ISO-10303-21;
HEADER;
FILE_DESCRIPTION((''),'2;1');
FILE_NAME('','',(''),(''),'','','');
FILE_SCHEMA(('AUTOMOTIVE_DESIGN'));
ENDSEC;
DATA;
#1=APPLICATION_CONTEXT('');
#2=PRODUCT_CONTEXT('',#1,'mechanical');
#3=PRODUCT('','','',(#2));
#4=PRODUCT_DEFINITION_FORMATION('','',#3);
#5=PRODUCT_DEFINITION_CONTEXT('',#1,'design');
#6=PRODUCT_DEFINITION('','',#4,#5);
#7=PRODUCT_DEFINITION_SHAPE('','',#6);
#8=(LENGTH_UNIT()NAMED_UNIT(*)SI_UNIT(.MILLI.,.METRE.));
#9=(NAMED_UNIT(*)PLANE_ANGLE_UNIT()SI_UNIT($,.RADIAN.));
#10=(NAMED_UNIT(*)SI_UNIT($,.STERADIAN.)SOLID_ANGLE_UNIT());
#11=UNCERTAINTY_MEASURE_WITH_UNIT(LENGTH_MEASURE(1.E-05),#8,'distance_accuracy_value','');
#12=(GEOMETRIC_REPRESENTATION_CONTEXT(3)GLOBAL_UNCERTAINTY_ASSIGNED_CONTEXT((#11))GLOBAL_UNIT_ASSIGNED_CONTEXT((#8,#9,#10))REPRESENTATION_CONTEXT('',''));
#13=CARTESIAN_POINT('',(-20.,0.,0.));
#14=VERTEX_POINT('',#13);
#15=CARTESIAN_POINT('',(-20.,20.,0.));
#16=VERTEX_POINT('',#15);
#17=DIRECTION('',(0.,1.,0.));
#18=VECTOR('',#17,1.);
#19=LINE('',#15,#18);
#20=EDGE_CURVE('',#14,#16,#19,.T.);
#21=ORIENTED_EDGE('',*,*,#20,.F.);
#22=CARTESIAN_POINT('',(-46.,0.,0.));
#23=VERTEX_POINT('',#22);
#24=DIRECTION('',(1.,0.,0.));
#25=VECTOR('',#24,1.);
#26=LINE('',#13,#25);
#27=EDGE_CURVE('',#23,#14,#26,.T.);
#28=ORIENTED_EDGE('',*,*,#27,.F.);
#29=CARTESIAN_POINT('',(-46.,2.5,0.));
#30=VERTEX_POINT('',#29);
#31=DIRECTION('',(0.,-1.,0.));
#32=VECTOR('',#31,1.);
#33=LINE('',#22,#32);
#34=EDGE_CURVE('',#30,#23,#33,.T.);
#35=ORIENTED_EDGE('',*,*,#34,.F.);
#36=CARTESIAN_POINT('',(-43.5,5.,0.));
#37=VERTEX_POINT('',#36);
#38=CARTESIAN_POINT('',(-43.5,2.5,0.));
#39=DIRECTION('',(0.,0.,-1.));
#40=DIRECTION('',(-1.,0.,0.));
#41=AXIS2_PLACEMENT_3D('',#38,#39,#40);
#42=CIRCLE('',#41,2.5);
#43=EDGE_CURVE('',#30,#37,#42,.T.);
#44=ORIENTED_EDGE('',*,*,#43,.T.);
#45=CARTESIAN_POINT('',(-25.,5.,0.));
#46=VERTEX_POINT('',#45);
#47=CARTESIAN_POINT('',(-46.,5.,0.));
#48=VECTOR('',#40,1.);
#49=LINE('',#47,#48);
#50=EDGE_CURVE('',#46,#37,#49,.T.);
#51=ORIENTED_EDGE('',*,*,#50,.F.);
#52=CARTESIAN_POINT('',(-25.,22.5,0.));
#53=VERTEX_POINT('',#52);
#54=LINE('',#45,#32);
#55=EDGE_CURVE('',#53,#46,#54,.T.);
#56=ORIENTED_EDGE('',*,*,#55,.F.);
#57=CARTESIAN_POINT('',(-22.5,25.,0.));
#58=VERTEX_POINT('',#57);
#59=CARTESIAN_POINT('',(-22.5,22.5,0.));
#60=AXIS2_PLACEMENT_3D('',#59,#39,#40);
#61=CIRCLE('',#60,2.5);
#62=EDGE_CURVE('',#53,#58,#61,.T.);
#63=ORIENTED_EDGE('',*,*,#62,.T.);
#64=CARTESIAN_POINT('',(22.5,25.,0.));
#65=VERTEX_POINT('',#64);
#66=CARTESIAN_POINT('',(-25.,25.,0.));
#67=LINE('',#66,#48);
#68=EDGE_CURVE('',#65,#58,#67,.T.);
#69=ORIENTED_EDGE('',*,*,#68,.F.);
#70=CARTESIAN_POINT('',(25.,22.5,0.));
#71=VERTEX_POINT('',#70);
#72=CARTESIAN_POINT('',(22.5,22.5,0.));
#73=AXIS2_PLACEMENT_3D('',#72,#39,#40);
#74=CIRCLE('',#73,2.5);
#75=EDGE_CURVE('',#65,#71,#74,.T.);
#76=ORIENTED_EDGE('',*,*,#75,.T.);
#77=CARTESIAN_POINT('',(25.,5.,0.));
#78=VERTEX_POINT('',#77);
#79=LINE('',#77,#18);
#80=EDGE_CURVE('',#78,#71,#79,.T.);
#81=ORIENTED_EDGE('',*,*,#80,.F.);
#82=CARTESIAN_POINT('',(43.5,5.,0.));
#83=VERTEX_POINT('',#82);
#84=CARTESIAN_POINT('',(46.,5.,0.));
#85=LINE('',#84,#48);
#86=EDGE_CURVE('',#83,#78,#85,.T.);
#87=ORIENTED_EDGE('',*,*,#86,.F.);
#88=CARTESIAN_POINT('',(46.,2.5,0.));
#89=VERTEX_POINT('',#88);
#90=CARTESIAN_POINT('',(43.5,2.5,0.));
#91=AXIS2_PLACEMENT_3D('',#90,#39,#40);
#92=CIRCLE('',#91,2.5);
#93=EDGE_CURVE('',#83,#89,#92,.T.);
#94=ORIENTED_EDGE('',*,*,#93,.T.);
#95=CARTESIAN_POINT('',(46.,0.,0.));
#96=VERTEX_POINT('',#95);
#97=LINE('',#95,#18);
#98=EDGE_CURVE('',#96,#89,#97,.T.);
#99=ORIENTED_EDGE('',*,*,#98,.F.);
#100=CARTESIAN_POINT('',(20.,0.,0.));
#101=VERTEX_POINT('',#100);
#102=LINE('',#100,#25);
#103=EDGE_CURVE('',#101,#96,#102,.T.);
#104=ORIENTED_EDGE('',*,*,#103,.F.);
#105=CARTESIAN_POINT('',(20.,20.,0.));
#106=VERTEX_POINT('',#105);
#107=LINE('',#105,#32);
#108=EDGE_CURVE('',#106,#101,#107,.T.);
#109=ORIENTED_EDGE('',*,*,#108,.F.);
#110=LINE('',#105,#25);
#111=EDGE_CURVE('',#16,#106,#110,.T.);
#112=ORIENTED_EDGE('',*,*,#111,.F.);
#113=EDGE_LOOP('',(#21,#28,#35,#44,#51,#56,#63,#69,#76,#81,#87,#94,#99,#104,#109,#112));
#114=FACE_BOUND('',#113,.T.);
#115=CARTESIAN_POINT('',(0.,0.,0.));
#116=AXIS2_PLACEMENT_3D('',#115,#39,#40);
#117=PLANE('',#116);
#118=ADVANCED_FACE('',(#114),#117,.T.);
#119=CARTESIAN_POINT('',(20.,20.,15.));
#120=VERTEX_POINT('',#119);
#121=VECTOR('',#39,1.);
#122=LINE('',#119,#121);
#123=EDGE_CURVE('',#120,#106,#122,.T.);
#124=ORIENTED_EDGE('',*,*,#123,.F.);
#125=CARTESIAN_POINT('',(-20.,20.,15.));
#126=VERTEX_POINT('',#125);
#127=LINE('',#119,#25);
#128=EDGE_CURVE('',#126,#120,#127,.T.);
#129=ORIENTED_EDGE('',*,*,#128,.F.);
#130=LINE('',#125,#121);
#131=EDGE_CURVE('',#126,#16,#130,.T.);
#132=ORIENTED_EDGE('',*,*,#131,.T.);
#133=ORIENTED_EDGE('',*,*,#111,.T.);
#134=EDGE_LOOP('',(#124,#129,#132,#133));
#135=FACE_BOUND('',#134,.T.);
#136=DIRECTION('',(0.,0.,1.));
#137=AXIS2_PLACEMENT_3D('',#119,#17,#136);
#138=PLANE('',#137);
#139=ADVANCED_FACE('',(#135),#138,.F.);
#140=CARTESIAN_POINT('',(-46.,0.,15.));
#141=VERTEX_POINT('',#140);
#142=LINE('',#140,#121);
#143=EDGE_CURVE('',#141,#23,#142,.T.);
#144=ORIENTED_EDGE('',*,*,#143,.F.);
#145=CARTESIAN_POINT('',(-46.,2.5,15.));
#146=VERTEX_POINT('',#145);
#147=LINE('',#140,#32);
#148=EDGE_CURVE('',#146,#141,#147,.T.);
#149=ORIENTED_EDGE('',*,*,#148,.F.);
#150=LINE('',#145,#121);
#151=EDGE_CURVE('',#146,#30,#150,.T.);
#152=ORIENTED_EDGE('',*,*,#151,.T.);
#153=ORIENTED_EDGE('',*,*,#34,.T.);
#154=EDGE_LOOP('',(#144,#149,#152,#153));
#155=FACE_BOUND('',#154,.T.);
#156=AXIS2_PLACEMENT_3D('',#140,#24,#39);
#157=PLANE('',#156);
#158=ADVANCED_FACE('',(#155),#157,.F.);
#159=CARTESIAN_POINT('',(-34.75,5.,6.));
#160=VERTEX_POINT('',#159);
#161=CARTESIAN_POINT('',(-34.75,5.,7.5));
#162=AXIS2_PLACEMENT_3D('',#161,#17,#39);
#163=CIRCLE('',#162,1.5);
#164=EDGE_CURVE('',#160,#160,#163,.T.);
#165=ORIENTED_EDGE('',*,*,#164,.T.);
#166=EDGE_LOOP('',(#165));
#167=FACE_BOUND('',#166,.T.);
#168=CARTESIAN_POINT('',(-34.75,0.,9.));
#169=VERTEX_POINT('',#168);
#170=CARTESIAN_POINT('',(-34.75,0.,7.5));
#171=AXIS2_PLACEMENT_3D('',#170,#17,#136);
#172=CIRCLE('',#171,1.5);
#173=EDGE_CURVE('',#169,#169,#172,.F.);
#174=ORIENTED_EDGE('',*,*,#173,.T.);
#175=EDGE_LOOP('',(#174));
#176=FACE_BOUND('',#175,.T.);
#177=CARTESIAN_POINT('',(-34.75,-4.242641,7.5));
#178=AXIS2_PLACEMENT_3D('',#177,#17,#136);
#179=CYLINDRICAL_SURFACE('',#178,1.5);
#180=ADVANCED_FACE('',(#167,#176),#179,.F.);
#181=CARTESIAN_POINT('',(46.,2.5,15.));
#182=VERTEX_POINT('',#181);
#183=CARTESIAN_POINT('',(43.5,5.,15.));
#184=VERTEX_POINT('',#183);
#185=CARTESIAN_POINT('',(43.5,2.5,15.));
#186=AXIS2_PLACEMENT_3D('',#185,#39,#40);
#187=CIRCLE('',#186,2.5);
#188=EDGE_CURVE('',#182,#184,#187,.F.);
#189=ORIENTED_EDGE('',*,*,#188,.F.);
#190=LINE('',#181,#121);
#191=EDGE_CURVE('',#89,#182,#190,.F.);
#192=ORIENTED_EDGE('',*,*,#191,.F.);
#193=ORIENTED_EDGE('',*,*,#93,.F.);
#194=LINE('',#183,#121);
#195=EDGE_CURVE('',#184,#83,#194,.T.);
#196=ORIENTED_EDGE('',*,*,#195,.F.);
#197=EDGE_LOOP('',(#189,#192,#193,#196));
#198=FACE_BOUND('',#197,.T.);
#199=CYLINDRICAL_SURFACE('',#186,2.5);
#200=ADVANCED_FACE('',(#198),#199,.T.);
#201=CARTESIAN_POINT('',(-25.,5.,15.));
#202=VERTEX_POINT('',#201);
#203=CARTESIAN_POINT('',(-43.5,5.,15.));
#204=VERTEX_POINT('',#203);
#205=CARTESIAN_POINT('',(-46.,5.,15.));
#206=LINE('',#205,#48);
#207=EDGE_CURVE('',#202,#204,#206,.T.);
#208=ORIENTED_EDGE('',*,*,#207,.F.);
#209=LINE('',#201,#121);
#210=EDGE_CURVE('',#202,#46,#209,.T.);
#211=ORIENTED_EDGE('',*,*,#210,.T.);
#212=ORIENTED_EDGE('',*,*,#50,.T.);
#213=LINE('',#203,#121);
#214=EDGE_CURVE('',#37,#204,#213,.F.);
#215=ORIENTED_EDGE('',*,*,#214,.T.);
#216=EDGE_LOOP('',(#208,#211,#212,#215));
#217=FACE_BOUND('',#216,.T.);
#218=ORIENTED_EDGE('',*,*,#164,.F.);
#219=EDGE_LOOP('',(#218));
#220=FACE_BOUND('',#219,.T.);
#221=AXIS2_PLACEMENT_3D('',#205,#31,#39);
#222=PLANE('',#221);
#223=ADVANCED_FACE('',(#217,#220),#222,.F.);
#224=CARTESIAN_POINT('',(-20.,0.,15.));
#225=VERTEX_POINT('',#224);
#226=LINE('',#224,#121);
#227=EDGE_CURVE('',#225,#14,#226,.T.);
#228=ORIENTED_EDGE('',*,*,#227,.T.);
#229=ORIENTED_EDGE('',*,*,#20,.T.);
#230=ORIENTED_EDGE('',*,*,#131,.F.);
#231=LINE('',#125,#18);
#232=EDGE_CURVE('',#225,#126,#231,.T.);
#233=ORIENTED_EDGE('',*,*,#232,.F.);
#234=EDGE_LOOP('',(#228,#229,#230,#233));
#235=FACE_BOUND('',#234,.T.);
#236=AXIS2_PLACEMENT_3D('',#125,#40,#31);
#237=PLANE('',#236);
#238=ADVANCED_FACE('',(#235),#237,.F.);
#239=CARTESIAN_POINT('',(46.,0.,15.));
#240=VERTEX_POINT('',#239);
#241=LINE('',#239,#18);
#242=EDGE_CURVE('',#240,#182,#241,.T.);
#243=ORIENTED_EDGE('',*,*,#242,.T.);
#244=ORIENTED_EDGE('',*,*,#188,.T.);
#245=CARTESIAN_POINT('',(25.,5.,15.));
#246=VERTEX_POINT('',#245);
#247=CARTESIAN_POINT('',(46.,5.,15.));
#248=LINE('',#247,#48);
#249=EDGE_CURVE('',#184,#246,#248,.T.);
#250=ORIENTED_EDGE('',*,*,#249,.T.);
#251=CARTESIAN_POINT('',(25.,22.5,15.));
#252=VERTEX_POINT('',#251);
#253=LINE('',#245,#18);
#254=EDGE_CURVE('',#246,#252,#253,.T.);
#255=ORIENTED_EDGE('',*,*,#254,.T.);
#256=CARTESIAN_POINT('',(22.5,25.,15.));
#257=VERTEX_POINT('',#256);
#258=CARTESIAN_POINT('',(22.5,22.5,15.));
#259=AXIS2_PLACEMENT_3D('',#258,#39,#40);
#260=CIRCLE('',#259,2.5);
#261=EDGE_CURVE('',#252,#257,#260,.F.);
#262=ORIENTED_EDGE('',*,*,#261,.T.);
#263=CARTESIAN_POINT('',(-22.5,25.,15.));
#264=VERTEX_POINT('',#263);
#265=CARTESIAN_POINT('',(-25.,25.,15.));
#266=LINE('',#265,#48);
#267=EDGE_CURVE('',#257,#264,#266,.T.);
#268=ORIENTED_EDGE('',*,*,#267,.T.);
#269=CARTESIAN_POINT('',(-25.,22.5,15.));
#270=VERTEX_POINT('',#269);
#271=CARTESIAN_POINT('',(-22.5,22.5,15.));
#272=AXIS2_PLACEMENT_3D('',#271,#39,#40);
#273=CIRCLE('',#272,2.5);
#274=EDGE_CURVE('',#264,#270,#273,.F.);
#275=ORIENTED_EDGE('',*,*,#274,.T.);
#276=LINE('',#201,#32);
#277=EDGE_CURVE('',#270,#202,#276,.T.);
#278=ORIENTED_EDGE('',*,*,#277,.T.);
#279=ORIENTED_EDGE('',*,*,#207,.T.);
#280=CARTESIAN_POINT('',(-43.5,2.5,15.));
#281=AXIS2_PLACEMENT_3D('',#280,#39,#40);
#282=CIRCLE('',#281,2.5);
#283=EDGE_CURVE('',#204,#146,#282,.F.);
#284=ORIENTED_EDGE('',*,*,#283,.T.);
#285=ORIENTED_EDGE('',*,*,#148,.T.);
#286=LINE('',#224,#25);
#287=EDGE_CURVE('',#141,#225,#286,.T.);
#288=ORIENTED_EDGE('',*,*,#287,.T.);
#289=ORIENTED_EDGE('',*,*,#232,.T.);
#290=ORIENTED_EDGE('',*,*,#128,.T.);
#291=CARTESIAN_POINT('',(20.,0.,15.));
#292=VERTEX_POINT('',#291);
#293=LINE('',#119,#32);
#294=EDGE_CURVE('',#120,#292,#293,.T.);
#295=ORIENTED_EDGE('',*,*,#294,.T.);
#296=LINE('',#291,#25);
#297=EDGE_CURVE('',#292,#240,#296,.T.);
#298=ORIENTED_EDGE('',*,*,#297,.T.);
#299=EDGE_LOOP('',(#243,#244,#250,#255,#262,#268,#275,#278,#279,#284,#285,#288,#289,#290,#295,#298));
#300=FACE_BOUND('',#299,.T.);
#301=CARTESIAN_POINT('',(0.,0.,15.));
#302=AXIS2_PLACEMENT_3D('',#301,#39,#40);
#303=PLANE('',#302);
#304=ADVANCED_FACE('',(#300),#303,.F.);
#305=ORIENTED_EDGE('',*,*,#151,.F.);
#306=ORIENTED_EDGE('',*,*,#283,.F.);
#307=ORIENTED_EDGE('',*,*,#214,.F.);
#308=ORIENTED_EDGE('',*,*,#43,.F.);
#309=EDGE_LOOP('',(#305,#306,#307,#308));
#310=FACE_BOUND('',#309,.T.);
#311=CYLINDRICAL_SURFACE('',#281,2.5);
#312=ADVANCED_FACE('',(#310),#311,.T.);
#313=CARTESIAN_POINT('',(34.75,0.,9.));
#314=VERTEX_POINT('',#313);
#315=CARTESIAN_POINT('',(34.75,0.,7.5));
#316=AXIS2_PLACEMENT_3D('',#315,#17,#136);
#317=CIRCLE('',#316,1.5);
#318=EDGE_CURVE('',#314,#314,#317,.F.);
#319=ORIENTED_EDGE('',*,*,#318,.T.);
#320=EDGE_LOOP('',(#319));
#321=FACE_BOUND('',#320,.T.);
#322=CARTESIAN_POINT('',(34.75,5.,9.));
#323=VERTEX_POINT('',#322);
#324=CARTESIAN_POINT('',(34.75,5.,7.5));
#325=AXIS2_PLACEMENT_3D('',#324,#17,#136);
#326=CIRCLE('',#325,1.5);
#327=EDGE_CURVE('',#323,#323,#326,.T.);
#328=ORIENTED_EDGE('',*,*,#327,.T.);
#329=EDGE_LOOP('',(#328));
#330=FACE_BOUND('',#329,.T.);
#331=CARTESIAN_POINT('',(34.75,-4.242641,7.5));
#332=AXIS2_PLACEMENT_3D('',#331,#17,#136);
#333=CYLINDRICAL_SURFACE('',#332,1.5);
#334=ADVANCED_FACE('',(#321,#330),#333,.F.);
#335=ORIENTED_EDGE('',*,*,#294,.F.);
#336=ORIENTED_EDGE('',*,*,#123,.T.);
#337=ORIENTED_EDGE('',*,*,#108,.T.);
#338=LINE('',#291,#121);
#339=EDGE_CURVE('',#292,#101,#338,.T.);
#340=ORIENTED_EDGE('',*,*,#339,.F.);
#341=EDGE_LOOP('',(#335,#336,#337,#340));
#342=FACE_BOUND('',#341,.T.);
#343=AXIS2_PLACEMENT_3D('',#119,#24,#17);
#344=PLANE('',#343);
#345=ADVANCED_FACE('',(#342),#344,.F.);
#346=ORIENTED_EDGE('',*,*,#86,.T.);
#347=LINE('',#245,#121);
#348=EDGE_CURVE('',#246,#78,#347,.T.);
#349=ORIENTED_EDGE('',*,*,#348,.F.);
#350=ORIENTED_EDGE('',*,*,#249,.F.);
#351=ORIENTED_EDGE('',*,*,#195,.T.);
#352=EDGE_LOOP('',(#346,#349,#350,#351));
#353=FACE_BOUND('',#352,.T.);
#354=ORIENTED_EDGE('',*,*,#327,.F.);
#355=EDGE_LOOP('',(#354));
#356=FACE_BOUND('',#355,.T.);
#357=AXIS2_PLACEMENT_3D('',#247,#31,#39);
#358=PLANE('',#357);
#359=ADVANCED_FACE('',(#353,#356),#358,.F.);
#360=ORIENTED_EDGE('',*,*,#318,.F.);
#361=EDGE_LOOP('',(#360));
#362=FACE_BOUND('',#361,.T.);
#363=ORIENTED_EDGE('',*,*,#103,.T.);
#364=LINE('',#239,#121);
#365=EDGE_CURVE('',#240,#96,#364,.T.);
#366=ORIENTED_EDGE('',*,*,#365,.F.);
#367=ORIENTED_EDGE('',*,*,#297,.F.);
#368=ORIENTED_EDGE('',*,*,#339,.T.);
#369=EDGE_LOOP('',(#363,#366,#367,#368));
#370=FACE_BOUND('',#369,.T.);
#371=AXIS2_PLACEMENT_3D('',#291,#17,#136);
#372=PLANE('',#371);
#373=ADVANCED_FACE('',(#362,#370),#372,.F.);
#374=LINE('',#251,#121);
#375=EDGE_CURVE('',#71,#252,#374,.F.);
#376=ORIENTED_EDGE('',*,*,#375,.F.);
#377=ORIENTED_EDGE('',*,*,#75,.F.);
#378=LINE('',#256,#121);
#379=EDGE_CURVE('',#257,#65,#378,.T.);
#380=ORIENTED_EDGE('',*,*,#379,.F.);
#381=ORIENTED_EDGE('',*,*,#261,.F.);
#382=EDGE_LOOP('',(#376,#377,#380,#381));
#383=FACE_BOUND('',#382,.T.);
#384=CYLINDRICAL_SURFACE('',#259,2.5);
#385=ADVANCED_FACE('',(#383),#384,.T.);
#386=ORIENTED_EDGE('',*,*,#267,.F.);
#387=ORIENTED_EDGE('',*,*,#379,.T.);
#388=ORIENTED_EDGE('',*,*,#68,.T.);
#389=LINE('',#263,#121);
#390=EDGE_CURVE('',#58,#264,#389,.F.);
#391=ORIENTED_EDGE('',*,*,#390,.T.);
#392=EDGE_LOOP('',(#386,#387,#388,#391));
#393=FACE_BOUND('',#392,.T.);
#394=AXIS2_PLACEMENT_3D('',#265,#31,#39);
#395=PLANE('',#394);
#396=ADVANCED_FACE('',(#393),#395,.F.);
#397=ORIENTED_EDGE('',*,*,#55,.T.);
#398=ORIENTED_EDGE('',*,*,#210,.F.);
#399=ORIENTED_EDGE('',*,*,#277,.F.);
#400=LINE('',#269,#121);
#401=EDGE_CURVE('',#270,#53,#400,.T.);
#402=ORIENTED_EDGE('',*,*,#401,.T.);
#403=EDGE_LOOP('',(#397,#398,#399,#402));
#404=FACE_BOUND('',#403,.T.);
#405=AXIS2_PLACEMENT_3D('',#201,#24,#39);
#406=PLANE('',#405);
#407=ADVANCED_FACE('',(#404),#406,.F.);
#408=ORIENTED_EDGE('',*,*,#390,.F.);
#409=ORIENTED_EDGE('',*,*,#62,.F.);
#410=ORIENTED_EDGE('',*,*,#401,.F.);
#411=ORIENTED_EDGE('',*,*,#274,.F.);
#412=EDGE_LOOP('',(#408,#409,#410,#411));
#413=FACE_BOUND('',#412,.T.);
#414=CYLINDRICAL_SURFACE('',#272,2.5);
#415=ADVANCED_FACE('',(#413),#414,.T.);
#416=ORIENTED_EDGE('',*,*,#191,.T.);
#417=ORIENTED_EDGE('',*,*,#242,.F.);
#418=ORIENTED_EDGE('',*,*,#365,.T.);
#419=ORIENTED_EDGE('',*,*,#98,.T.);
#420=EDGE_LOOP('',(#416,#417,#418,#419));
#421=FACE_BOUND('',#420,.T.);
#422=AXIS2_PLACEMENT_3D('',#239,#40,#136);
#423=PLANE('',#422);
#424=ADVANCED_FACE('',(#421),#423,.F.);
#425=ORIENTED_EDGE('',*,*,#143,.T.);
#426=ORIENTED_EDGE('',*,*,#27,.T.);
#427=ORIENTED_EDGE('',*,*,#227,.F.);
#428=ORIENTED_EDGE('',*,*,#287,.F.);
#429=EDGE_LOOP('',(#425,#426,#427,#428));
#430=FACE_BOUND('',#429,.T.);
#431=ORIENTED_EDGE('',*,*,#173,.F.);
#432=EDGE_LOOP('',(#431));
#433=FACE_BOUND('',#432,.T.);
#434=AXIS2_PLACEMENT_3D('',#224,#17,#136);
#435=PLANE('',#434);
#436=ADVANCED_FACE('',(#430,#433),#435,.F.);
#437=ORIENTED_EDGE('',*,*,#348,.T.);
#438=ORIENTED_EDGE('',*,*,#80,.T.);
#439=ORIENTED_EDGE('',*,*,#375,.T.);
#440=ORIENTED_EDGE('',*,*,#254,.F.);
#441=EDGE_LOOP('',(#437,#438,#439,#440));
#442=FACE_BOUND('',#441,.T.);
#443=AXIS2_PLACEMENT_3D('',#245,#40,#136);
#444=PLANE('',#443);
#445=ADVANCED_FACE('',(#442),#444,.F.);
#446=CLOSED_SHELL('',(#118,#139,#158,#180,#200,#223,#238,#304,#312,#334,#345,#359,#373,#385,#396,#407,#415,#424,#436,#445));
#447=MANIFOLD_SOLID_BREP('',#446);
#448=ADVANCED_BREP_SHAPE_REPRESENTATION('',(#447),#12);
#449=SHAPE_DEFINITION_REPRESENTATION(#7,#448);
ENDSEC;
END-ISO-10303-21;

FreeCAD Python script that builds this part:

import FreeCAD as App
import Part
import Sketcher

V = App.Vector


def edges_at(feature, points):
    """Names of the edges that pass closest to the given points."""
    edges = feature.Shape.Edges
    near = lambda p: min(range(len(edges)), key=lambda i: edges[i].distToShape(Part.Vertex(*p))[0])
    return sorted({f"Edge{near(p) + 1}" for p in points})

doc = App.newDocument("Part")
params = doc.addObject("Spreadsheet::Sheet", "Params")
for row, (alias, value) in enumerate([
    ("sketch1_width", "40 mm"),
    ("sketch1_width2", "26 mm"),
    ("sketch1_width3", "21 mm"),
    ("sketch1_height", "20 mm"),
    ("sketch1_height2", "5 mm"),
    ("pad1_length", "15 mm"),
    ("fillet_radius", "2.5 mm"),
    ("sketch2_diameter", "3 mm"),
    ("pocket1_length", "5 mm"),
], start=1):
    params.set(f"A{row}", alias)
    params.set(f"B{row}", "=" + value)
    params.setAlias(f"B{row}", alias)

body = doc.addObject("PartDesign::Body", "Body")

# Sketch on XY plane
sketch1 = body.newObject("Sketcher::SketchObject", "Sketch")
sketch1.AttachmentSupport = (doc.getObject("XY_Plane"), [""])
sketch1.MapMode = "FlatFace"
sketch1.addGeometry([
    Part.LineSegment(V(-20, 20, 0), V(20, 20, 0)),  # 0
    Part.LineSegment(V(20, 20, 0), V(20, 0, 0)),  # 1
    Part.LineSegment(V(20, 0, 0), V(46, 0, 0)),  # 2
    Part.LineSegment(V(46, 0, 0), V(46, 5, 0)),  # 3
    Part.LineSegment(V(46, 5, 0), V(25, 5, 0)),  # 4
    Part.LineSegment(V(25, 5, 0), V(25, 25, 0)),  # 5
    Part.LineSegment(V(25, 25, 0), V(-25, 25, 0)),  # 6
    Part.LineSegment(V(-25, 25, 0), V(-25, 5, 0)),  # 7
    Part.LineSegment(V(-25, 5, 0), V(-46, 5, 0)),  # 8
    Part.LineSegment(V(-46, 5, 0), V(-46, 0, 0)),  # 9
    Part.LineSegment(V(-46, 0, 0), V(-20, 0, 0)),  # 10
    Part.LineSegment(V(-20, 0, 0), V(-20, 20, 0)),  # 11
], False)
sketch1.addConstraint([
    Sketcher.Constraint("Coincident", 0, 2, 1, 1),
    Sketcher.Constraint("Coincident", 1, 2, 2, 1),
    Sketcher.Constraint("Coincident", 2, 2, 3, 1),
    Sketcher.Constraint("Coincident", 3, 2, 4, 1),
    Sketcher.Constraint("Coincident", 4, 2, 5, 1),
    Sketcher.Constraint("Coincident", 5, 2, 6, 1),
    Sketcher.Constraint("Coincident", 6, 2, 7, 1),
    Sketcher.Constraint("Coincident", 7, 2, 8, 1),
    Sketcher.Constraint("Coincident", 8, 2, 9, 1),
    Sketcher.Constraint("Coincident", 9, 2, 10, 1),
    Sketcher.Constraint("Coincident", 10, 2, 11, 1),
    Sketcher.Constraint("Coincident", 11, 2, 0, 1),
    Sketcher.Constraint("Horizontal", 0),
    Sketcher.Constraint("Vertical", 1),
    Sketcher.Constraint("Horizontal", 2),
    Sketcher.Constraint("Vertical", 3),
    Sketcher.Constraint("Horizontal", 4),
    Sketcher.Constraint("Vertical", 5),
    Sketcher.Constraint("Horizontal", 6),
    Sketcher.Constraint("Vertical", 7),
    Sketcher.Constraint("Horizontal", 8),
    Sketcher.Constraint("Vertical", 9),
    Sketcher.Constraint("Horizontal", 10),
    Sketcher.Constraint("Vertical", 11),
    Sketcher.Constraint("Symmetric", 2, 2, 9, 2, -1, 1),
    Sketcher.Constraint("Symmetric", 4, 2, 7, 2, -2),
    Sketcher.Constraint("Symmetric", 1, 2, 10, 2, -2),
    Sketcher.Constraint("Equal", 1, 5),
    Sketcher.Constraint("DistanceX", 0, 1, 0, 2, 40.0),
    Sketcher.Constraint("DistanceX", 2, 1, 2, 2, 26.0),
    Sketcher.Constraint("DistanceX", 4, 2, 4, 1, 21.0),
    Sketcher.Constraint("DistanceY", 1, 2, 1, 1, 20.0),
    Sketcher.Constraint("DistanceY", 3, 1, 3, 2, 5.0),
])
sketch1.setExpression("Constraints[28]", "Params.sketch1_width")
sketch1.setExpression("Constraints[29]", "Params.sketch1_width2")
sketch1.setExpression("Constraints[30]", "Params.sketch1_width3")
sketch1.setExpression("Constraints[31]", "Params.sketch1_height")
sketch1.setExpression("Constraints[32]", "Params.sketch1_height2")
pad1 = body.newObject("PartDesign::Pad", "Pad")
pad1.Profile = sketch1
pad1.setExpression("Length", "Params.pad1_length")
doc.recompute()

fillet = body.newObject("PartDesign::Fillet", "Fillet")
fillet.Base = (pad1, edges_at(pad1, [
    (-25, 25, 7.5),
    (25, 25, 7.5),
    (46, 5, 7.5),
    (-46, 5, 7.5),
]))
fillet.setExpression("Radius", "Params.fillet_radius")

# Sketch on XZ plane
sketch2 = body.newObject("Sketcher::SketchObject", "Sketch001")
sketch2.AttachmentSupport = (doc.getObject("XZ_Plane"), [""])
sketch2.MapMode = "FlatFace"
sketch2.AttachmentOffset = App.Placement(V(0, 0, -5), App.Rotation())
sketch2.addGeometry([
    Part.Circle(V(34.75, 7.5, 0), V(0, 0, 1), 1.5),
    Part.Circle(V(-34.75, 7.5, 0), V(0, 0, 1), 1.5),
], False)
sketch2.addConstraint([
    Sketcher.Constraint("Equal", 0, 1),
    Sketcher.Constraint("Symmetric", 0, 3, 1, 3, -2),
    Sketcher.Constraint("Diameter", 0, 3.0),
    Sketcher.Constraint("DistanceY", -1, 1, 0, 3, 7.5),
    Sketcher.Constraint("DistanceX", 1, 3, 0, 3, 69.5),
])
sketch2.setExpression("Constraints[2]", "Params.sketch2_diameter")
pocket1 = body.newObject("PartDesign::Pocket", "Pocket")
pocket1.Profile = sketch2
pocket1.setExpression("Length", "Params.pocket1_length")
pocket1.Reversed = True

doc.recompute()
